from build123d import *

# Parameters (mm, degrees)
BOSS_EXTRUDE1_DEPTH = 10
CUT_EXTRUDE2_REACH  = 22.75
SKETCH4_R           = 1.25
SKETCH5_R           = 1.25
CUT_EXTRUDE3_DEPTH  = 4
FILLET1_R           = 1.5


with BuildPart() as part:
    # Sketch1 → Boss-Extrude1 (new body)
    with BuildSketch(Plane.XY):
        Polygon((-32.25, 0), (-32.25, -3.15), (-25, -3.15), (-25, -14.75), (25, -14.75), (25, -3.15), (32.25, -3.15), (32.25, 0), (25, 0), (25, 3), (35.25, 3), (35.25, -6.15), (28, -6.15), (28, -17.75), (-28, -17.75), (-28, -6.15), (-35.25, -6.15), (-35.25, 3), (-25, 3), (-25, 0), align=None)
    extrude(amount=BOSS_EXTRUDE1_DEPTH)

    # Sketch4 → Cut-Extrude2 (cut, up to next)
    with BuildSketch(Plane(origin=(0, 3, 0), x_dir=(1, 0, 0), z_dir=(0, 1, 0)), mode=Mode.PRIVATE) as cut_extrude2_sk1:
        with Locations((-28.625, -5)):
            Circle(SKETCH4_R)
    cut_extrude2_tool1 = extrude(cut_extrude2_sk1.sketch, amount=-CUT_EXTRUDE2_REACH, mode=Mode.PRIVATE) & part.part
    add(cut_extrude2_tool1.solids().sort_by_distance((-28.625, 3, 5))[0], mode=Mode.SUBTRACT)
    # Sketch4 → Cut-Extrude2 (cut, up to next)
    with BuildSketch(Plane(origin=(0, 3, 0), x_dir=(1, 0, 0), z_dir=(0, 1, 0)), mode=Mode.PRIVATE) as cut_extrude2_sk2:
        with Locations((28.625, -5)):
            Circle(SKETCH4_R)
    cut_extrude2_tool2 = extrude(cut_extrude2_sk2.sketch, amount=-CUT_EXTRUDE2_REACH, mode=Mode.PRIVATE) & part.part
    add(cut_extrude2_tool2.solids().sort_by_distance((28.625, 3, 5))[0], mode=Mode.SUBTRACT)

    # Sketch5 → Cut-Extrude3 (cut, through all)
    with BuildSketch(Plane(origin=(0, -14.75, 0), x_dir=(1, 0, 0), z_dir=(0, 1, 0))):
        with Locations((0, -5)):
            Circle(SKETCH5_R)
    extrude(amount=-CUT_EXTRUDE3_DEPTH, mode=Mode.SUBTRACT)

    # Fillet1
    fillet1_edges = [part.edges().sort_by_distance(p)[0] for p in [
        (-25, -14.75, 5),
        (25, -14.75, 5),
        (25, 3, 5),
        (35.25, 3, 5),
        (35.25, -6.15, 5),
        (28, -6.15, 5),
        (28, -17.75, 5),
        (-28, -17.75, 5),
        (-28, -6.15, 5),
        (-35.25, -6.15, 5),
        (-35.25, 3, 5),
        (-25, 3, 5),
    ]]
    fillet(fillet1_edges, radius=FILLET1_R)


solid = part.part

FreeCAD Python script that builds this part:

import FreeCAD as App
import Part
import Sketcher
from FreeCAD import Vector


def edges_at(feature, points):
    """Names of the edges that pass closest to the given points."""
    edges = feature.Shape.Edges
    near = lambda p: min(range(len(edges)), key=lambda i: edges[i].distToShape(Part.Vertex(*p))[0])
    return sorted({f"Edge{near(p) + 1}" for p in points})

doc = App.newDocument("Part")
body = doc.addObject("PartDesign::Body", "Body")

sketch1 = body.newObject("Sketcher::SketchObject", "Sketch")
sketch1.AttachmentSupport = (doc.getObject("XY_Plane"), [""])
sketch1.MapMode = "FlatFace"
sketch1.addGeometry(Part.LineSegment(Vector(-32.25, -3.15, 0), Vector(-32.25, 0, 0)), False)
sketch1.addGeometry(Part.LineSegment(Vector(-32.25, 0, 0), Vector(-25, 0, 0)), False)
sketch1.addGeometry(Part.LineSegment(Vector(-25, 0, 0), Vector(-25, 3, 0)), False)
sketch1.addGeometry(Part.LineSegment(Vector(-25, 3, 0), Vector(-35.25, 3, 0)), False)
sketch1.addGeometry(Part.LineSegment(Vector(-35.25, 3, 0), Vector(-35.25, -6.15, 0)), False)
sketch1.addGeometry(Part.LineSegment(Vector(-35.25, -6.15, 0), Vector(-28, -6.15, 0)), False)
sketch1.addGeometry(Part.LineSegment(Vector(-28, -6.15, 0), Vector(-28, -17.75, 0)), False)
sketch1.addGeometry(Part.LineSegment(Vector(-28, -17.75, 0), Vector(28, -17.75, 0)), False)
sketch1.addGeometry(Part.LineSegment(Vector(28, -17.75, 0), Vector(28, -6.15, 0)), False)
sketch1.addGeometry(Part.LineSegment(Vector(28, -6.15, 0), Vector(35.25, -6.15, 0)), False)
sketch1.addGeometry(Part.LineSegment(Vector(35.25, -6.15, 0), Vector(35.25, 3, 0)), False)
sketch1.addGeometry(Part.LineSegment(Vector(35.25, 3, 0), Vector(25, 3, 0)), False)
sketch1.addGeometry(Part.LineSegment(Vector(25, 3, 0), Vector(25, 0, 0)), False)
sketch1.addGeometry(Part.LineSegment(Vector(25, 0, 0), Vector(32.25, 0, 0)), False)
sketch1.addGeometry(Part.LineSegment(Vector(32.25, 0, 0), Vector(32.25, -3.15, 0)), False)
sketch1.addGeometry(Part.LineSegment(Vector(32.25, -3.15, 0), Vector(25, -3.15, 0)), False)
sketch1.addGeometry(Part.LineSegment(Vector(25, -3.15, 0), Vector(25, -14.75, 0)), False)
sketch1.addGeometry(Part.LineSegment(Vector(25, -14.75, 0), Vector(-25, -14.75, 0)), False)
sketch1.addGeometry(Part.LineSegment(Vector(-25, -14.75, 0), Vector(-25, -3.15, 0)), False)
sketch1.addGeometry(Part.LineSegment(Vector(-25, -3.15, 0), Vector(-32.25, -3.15, 0)), False)
sketch1.addConstraint(Sketcher.Constraint("Coincident", 0, 2, 1, 1))
sketch1.addConstraint(Sketcher.Constraint("Coincident", 1, 2, 2, 1))
sketch1.addConstraint(Sketcher.Constraint("Coincident", 2, 2, 3, 1))
sketch1.addConstraint(Sketcher.Constraint("Coincident", 3, 2, 4, 1))
sketch1.addConstraint(Sketcher.Constraint("Coincident", 4, 2, 5, 1))
sketch1.addConstraint(Sketcher.Constraint("Coincident", 5, 2, 6, 1))
sketch1.addConstraint(Sketcher.Constraint("Coincident", 6, 2, 7, 1))
sketch1.addConstraint(Sketcher.Constraint("Coincident", 7, 2, 8, 1))
sketch1.addConstraint(Sketcher.Constraint("Coincident", 8, 2, 9, 1))
sketch1.addConstraint(Sketcher.Constraint("Coincident", 9, 2, 10, 1))
sketch1.addConstraint(Sketcher.Constraint("Coincident", 10, 2, 11, 1))
sketch1.addConstraint(Sketcher.Constraint("Coincident", 11, 2, 12, 1))
sketch1.addConstraint(Sketcher.Constraint("Coincident", 12, 2, 13, 1))
sketch1.addConstraint(Sketcher.Constraint("Coincident", 13, 2, 14, 1))
sketch1.addConstraint(Sketcher.Constraint("Coincident", 14, 2, 15, 1))
sketch1.addConstraint(Sketcher.Constraint("Coincident", 15, 2, 16, 1))
sketch1.addConstraint(Sketcher.Constraint("Coincident", 16, 2, 17, 1))
sketch1.addConstraint(Sketcher.Constraint("Coincident", 17, 2, 18, 1))
sketch1.addConstraint(Sketcher.Constraint("Coincident", 18, 2, 19, 1))
sketch1.addConstraint(Sketcher.Constraint("Coincident", 19, 2, 0, 1))
sketch1.addConstraint(Sketcher.Constraint("Vertical", 0))
sketch1.addConstraint(Sketcher.Constraint("Horizontal", 1))
sketch1.addConstraint(Sketcher.Constraint("Vertical", 2))
sketch1.addConstraint(Sketcher.Constraint("Horizontal", 3))
sketch1.addConstraint(Sketcher.Constraint("Vertical", 4))
sketch1.addConstraint(Sketcher.Constraint("Horizontal", 5))
sketch1.addConstraint(Sketcher.Constraint("Vertical", 6))
sketch1.addConstraint(Sketcher.Constraint("Horizontal", 7))
sketch1.addConstraint(Sketcher.Constraint("Vertical", 8))
sketch1.addConstraint(Sketcher.Constraint("Horizontal", 9))
sketch1.addConstraint(Sketcher.Constraint("Vertical", 10))
sketch1.addConstraint(Sketcher.Constraint("Horizontal", 11))
sketch1.addConstraint(Sketcher.Constraint("Vertical", 12))
sketch1.addConstraint(Sketcher.Constraint("Horizontal", 13))
sketch1.addConstraint(Sketcher.Constraint("Vertical", 14))
sketch1.addConstraint(Sketcher.Constraint("Horizontal", 15))
sketch1.addConstraint(Sketcher.Constraint("Vertical", 16))
sketch1.addConstraint(Sketcher.Constraint("Horizontal", 17))
sketch1.addConstraint(Sketcher.Constraint("Vertical", 18))
sketch1.addConstraint(Sketcher.Constraint("Horizontal", 19))
sketch1.addConstraint(Sketcher.Constraint("Symmetric", 1, 2, 12, 2, -1, 1))
sketch1.addConstraint(Sketcher.Constraint("Symmetric", 5, 2, 8, 2, -2))
sketch1.addConstraint(Sketcher.Constraint("Symmetric", 3, 2, 10, 2, -2))
sketch1.addConstraint(Sketcher.Constraint("Symmetric", 0, 2, 13, 2, -2))
sketch1.addConstraint(Sketcher.Constraint("Symmetric", 15, 2, 18, 2, -2))
sketch1.addConstraint(Sketcher.Constraint("Vertical", 12, 2, 15, 2))
sketch1.addConstraint(Sketcher.Constraint("Equal", 1, 5))
sketch1.addConstraint(Sketcher.Constraint("Equal", 8, 16))
sketch1.addConstraint(Sketcher.Constraint("DistanceX", 7, 1, 7, 2, 56.0))
sketch1.addConstraint(Sketcher.Constraint("DistanceX", 17, 2, 17, 1, 50.0))
sketch1.addConstraint(Sketcher.Constraint("DistanceY", 2, 1, 2, 2, 3.0))
sketch1.addConstraint(Sketcher.Constraint("DistanceY", 6, 2, 6, 1, 11.6))
sketch1.addConstraint(Sketcher.Constraint("DistanceY", 9, 2, 14, 2, 3.0))
sketch1.addConstraint(Sketcher.Constraint("DistanceX", 1, 1, 1, 2, 7.25))
sketch1.addConstraint(Sketcher.Constraint("DistanceY", 0, 1, 0, 2, 3.15))
pad1 = body.newObject("PartDesign::Pad", "Pad")
pad1.Profile = sketch1
pad1.Length = 10

sketch2 = body.newObject("Sketcher::SketchObject", "Sketch001")
sketch2.AttachmentSupport = (doc.getObject("XZ_Plane"), [""])
sketch2.MapMode = "FlatFace"
sketch2.AttachmentOffset = App.Placement(Vector(0, 0, -3), App.Rotation())
sketch2.addGeometry(Part.Circle(Vector(-28.625, 5, 0), Vector(0, 0, 1), 1.25), False)
sketch2.addConstraint(Sketcher.Constraint("Diameter", 0, 2.5))
sketch2.addConstraint(Sketcher.Constraint("DistanceY", -1, 1, 0, 3, 5.0))
sketch2.addConstraint(Sketcher.Constraint("DistanceX", 0, 3, -1, 1, 28.625))
pocket1 = body.newObject("PartDesign::Pocket", "Pocket")
pocket1.Profile = sketch2
pocket1.Type = "UpToFirst"
pocket1.Reversed = True

sketch3 = body.newObject("Sketcher::SketchObject", "Sketch002")
sketch3.AttachmentSupport = (doc.getObject("XZ_Plane"), [""])
sketch3.MapMode = "FlatFace"
sketch3.AttachmentOffset = App.Placement(Vector(0, 0, -3), App.Rotation())
sketch3.addGeometry(Part.Circle(Vector(28.625, 5, 0), Vector(0, 0, 1), 1.25), False)
sketch3.addConstraint(Sketcher.Constraint("Diameter", 0, 2.5))
sketch3.addConstraint(Sketcher.Constraint("DistanceY", -1, 1, 0, 3, 5.0))
sketch3.addConstraint(Sketcher.Constraint("DistanceX", -1, 1, 0, 3, 28.625))
pocket2 = body.newObject("PartDesign::Pocket", "Pocket001")
pocket2.Profile = sketch3
pocket2.Type = "UpToFirst"
pocket2.Reversed = True

sketch4 = body.newObject("Sketcher::SketchObject", "Sketch003")
sketch4.AttachmentSupport = (doc.getObject("XZ_Plane"), [""])
sketch4.MapMode = "FlatFace"
sketch4.AttachmentOffset = App.Placement(Vector(0, 0, 14.75), App.Rotation())
sketch4.addGeometry(Part.Circle(Vector(0, 5, 0), Vector(0, 0, 1), 1.25), False)
sketch4.addConstraint(Sketcher.Constraint("PointOnObject", 0, 3, -2))
sketch4.addConstraint(Sketcher.Constraint("Diameter", 0, 2.5))
sketch4.addConstraint(Sketcher.Constraint("DistanceY", -1, 1, 0, 3, 5.0))
pocket3 = body.newObject("PartDesign::Pocket", "Pocket002")
pocket3.Profile = sketch4
pocket3.Type = "ThroughAll"
pocket3.Reversed = True
doc.recompute()

fillet = body.newObject("PartDesign::Fillet", "Fillet")
fillet.Base = (pocket3, edges_at(pocket3, [
    (-25, -14.75, 5),
    (25, -14.75, 5),
    (25, 3, 5),
    (35.25, 3, 5),
    (35.25, -6.15, 5),
    (28, -6.15, 5),
    (28, -17.75, 5),
    (-28, -17.75, 5),
    (-28, -6.15, 5),
    (-35.25, -6.15, 5),
    (-35.25, 3, 5),
    (-25, 3, 5),
]))
fillet.Radius = 1.5

doc.recompute()
